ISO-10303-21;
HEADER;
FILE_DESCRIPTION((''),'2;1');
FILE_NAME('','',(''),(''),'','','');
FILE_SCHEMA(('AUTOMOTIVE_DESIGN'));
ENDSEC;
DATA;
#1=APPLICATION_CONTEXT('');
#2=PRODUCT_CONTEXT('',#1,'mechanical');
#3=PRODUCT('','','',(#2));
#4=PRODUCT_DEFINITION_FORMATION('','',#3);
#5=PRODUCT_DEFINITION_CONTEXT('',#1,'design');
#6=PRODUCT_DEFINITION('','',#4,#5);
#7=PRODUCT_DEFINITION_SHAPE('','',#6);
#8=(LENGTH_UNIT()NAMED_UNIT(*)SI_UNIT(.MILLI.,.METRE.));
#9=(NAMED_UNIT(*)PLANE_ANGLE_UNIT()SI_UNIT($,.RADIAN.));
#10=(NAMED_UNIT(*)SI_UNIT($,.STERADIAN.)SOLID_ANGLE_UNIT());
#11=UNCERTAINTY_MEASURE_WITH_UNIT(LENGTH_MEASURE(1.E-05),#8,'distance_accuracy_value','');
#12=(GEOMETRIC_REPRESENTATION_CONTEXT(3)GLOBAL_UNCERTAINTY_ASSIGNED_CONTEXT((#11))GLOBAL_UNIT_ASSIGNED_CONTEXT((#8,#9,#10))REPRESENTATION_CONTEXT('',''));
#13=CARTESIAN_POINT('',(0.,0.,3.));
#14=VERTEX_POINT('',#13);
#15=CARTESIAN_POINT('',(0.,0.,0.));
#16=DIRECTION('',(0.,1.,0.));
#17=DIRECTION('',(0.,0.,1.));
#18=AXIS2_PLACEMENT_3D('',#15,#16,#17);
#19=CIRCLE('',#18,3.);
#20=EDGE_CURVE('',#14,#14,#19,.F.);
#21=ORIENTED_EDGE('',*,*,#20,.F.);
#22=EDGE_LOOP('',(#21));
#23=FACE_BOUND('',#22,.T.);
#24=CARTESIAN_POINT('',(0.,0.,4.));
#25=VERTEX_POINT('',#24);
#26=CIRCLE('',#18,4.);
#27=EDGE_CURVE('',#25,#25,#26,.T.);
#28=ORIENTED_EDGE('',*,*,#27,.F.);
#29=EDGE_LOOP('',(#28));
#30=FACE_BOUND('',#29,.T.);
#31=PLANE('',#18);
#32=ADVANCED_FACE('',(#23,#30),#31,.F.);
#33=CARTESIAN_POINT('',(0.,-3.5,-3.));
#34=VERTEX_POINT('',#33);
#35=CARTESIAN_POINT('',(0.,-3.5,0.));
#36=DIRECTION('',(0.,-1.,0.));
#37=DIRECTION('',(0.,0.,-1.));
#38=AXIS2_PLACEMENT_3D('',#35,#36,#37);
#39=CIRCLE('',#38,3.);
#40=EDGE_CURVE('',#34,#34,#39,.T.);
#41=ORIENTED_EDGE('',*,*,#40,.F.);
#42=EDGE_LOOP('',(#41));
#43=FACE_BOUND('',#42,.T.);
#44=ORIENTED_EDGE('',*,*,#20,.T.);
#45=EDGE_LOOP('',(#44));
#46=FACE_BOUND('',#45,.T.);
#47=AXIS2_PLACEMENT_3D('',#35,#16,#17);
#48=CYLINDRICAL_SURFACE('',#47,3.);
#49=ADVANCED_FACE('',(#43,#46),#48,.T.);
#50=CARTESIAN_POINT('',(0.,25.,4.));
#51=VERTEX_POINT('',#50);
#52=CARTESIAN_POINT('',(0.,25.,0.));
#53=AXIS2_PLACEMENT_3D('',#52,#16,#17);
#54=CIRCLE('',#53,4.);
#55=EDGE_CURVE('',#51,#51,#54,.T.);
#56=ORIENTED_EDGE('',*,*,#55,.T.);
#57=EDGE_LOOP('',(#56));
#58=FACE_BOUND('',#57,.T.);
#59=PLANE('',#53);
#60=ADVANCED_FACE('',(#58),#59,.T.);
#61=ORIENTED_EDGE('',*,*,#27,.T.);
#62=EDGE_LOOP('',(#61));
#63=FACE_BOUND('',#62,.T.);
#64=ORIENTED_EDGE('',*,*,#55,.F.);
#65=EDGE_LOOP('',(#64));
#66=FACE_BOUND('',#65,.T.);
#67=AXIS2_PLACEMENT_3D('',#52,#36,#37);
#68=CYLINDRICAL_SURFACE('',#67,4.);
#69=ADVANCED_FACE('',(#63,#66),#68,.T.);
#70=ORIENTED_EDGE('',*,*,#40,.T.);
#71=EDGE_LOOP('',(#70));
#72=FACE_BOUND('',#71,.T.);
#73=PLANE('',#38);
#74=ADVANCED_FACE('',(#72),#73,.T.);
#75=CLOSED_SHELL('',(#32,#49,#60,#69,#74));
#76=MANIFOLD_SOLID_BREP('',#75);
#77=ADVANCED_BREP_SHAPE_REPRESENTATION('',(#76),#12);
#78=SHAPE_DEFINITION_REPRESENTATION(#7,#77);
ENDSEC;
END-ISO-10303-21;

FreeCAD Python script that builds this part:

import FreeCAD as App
import Part
import Sketcher

V = App.Vector
Q = App.Units.Quantity

doc = App.newDocument("Part")
params = doc.addObject("Spreadsheet::Sheet", "Params")
for row, (alias, value) in enumerate([
    ("sketch1_diameter", "8 mm"),
    ("pad1_length", "25 mm"),
    ("sketch2_diameter", "6 mm"),
    ("pad2_length", "3.5 mm"),
], start=1):
    params.set(f"A{row}", alias)
    params.set(f"B{row}", "=" + value)
    params.setAlias(f"B{row}", alias)

body = doc.addObject("PartDesign::Body", "Body")

sketch1 = body.newObject("Sketcher::SketchObject", "Sketch")
sketch1.AttachmentSupport = (doc.getObject("XZ_Plane"), [""])
sketch1.MapMode = "FlatFace"
sketch1.addGeometry(Part.Circle(V(0, 0, 0), V(0, 0, 1), 4), False)
sketch1.addConstraint(Sketcher.Constraint("Coincident", 0, 3, -1, 1))
sketch1.addConstraint(Sketcher.Constraint("Diameter", 0, Q("8 mm")))
sketch1.setExpression("Constraints[1]", "Params.sketch1_diameter")
pad1 = body.newObject("PartDesign::Pad", "Pad")
pad1.Profile = sketch1
pad1.setExpression("Length", "Params.pad1_length")
pad1.Reversed = True

sketch2 = body.newObject("Sketcher::SketchObject", "Sketch001")
sketch2.AttachmentSupport = (doc.getObject("XZ_Plane"), [""])
sketch2.MapMode = "FlatFace"
sketch2.addGeometry(Part.Circle(V(0, 0, 0), V(0, 0, 1), 3), False)
sketch2.addConstraint(Sketcher.Constraint("Coincident", 0, 3, -1, 1))
sketch2.addConstraint(Sketcher.Constraint("Diameter", 0, Q("6 mm")))
sketch2.setExpression("Constraints[1]", "Params.sketch2_diameter")
pad2 = body.newObject("PartDesign::Pad", "Pad001")
pad2.Profile = sketch2
pad2.setExpression("Length", "Params.pad2_length")

doc.recompute()
